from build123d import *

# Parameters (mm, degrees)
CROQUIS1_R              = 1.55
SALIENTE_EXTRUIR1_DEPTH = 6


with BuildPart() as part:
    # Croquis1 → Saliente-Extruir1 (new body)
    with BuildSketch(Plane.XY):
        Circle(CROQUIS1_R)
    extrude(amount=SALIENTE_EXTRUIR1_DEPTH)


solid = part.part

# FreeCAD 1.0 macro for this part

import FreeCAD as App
import Part
import Sketcher
Q = App.Units.Quantity

doc = App.newDocument("Part")
body = doc.addObject("PartDesign::Body", "Body")

# Sketch on XY plane
sketch1 = body.newObject("Sketcher::SketchObject", "Sketch")
sketch1.AttachmentSupport = (doc.getObject("XY_Plane"), [""])
sketch1.MapMode = "FlatFace"
sketch1.addGeometry(Part.Circle(App.Vector(0, 0, 0), App.Vector(0, 0, 1), 1.6), False)
sketch1.addConstraint([
    Sketcher.Constraint("Coincident", 0, 3, -1, 1),
    Sketcher.Constraint("Diameter", 0, Q("3.1 mm")),
])
pad1 = body.newObject("PartDesign::Pad", "Pad")
pad1.Profile = sketch1
pad1.Length = 6

doc.recompute()
